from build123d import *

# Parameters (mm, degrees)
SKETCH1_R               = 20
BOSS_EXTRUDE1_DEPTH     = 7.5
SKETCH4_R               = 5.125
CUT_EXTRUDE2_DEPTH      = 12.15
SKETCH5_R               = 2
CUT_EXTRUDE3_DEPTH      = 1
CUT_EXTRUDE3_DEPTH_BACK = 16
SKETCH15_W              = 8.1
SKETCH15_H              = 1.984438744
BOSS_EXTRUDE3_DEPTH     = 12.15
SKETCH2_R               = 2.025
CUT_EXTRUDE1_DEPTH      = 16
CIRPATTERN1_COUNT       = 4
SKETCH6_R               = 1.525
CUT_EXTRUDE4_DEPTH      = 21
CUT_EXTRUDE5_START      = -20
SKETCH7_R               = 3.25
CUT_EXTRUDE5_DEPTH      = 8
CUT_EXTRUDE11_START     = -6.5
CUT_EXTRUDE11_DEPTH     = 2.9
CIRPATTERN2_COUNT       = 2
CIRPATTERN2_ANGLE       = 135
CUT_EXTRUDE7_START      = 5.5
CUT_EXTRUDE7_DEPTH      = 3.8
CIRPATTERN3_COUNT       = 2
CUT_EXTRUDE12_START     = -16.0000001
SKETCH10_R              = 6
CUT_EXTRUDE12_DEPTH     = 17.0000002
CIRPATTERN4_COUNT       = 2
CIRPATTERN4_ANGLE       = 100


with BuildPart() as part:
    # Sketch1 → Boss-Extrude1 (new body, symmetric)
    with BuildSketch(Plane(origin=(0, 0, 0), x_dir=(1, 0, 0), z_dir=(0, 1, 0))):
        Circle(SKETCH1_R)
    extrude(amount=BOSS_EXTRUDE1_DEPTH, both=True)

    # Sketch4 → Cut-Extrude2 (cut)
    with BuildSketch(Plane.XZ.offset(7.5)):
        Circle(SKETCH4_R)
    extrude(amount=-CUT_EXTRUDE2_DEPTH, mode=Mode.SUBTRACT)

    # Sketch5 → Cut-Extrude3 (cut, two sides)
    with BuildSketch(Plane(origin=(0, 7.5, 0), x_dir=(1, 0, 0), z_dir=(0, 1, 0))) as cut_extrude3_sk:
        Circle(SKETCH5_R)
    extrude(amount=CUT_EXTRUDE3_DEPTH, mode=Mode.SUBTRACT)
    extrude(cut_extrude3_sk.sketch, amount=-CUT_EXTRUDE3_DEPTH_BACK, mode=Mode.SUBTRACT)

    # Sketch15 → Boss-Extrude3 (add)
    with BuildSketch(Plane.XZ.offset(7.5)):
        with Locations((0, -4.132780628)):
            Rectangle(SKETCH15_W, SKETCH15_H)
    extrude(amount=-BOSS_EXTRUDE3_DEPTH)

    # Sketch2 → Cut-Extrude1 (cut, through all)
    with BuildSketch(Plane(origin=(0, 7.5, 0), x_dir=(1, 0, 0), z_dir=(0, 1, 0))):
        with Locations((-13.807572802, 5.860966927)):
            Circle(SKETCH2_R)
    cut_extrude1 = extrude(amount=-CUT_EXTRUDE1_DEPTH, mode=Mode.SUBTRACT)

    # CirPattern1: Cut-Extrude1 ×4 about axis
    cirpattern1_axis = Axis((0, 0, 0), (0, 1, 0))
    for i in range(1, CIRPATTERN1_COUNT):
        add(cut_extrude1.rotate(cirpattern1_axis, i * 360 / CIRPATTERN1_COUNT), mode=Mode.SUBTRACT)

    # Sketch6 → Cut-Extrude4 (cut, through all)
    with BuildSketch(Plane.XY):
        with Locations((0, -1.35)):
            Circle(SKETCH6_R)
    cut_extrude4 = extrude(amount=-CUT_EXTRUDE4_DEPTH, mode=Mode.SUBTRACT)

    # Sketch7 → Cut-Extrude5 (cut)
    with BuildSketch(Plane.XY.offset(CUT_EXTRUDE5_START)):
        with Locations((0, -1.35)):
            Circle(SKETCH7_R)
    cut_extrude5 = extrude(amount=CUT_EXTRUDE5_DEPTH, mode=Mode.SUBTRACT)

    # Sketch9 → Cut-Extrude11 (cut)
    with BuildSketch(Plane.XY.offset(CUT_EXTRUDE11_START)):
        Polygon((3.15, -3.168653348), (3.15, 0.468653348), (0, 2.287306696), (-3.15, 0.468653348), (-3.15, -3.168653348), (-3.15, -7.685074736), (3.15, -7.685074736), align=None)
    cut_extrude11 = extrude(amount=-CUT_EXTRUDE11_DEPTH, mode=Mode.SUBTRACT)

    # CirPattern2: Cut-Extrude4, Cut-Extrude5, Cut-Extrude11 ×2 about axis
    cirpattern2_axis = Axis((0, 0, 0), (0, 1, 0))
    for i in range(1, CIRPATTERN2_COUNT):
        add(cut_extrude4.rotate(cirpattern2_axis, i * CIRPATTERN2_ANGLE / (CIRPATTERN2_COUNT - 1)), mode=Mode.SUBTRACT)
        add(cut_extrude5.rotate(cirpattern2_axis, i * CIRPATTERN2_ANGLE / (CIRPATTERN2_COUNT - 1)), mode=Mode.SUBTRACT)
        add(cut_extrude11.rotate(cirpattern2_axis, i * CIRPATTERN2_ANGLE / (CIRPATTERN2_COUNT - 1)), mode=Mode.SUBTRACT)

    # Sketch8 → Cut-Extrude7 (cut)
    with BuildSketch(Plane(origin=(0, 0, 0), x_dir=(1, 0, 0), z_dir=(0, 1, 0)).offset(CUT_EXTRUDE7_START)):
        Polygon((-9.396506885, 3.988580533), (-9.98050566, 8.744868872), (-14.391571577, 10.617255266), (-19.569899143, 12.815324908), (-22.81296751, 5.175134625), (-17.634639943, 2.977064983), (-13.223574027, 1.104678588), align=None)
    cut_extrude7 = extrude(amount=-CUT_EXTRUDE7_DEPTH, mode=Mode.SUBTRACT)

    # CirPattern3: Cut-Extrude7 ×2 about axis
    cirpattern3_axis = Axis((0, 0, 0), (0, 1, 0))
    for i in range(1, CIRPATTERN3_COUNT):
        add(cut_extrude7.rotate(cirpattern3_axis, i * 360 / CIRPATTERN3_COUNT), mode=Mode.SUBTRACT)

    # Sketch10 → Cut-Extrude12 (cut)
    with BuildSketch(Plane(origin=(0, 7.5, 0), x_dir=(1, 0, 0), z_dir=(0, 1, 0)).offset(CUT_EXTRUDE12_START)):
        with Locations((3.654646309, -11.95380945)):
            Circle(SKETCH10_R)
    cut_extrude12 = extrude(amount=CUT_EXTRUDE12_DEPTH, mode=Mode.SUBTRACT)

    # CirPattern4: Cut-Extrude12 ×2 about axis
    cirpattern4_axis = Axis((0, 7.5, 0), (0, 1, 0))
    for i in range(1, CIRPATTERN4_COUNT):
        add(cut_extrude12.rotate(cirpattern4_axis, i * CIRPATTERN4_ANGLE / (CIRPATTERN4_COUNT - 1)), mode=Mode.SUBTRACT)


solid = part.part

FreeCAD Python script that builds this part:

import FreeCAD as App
import Part
import Sketcher
from FreeCAD import Vector
Q = App.Units.Quantity


def add_polygon(sketch, points):
    """Adds a closed chain of lines whose ends are joined by coincident constraints."""
    first, n = sketch.GeometryCount, len(points)
    for a, b in zip(points, points[1:] + points[:1]):
        sketch.addGeometry(Part.LineSegment(App.Vector(*a, 0), App.Vector(*b, 0)), False)
    for i in range(n):
        sketch.addConstraint(Sketcher.Constraint("Coincident", first + i, 2, first + (i + 1) % n, 1))

doc = App.newDocument("Part")
body = doc.addObject("PartDesign::Body", "Body")

sketch1 = doc.addObject("Sketcher::SketchObject", "Sketch")
body.addObject(sketch1)
sketch1.AttachmentSupport = (doc.XZ_Plane, [""])
sketch1.MapMode = "FlatFace"
sketch1.addGeometry(Part.Circle(Vector(0, 0, 0), Vector(0, 0, 1), 20), False)
sketch1.addConstraint([
    Sketcher.Constraint("Coincident", 0, 3, -1, 1),
    Sketcher.Constraint("Diameter", 0, Q("40 mm")),
])
pad1 = doc.addObject("PartDesign::Pad", "Pad")
body.addObject(pad1)
pad1.Profile = sketch1
pad1.Length = 15
pad1.Midplane = True

sketch2 = doc.addObject("Sketcher::SketchObject", "Sketch001")
body.addObject(sketch2)
sketch2.AttachmentSupport = (doc.XZ_Plane, [""])
sketch2.MapMode = "FlatFace"
sketch2.AttachmentOffset = App.Placement(Vector(0, 0, 7.5), App.Rotation())
sketch2.addGeometry(Part.Circle(Vector(0, 0, 0), Vector(0, 0, 1), 5), False)
sketch2.addConstraint([
    Sketcher.Constraint("Coincident", 0, 3, -1, 1),
    Sketcher.Constraint("Diameter", 0, Q("10.25 mm")),
])
pocket1 = doc.addObject("PartDesign::Pocket", "Pocket")
body.addObject(pocket1)
pocket1.Profile = sketch2
pocket1.Length = 12.15

sketch3 = doc.addObject("Sketcher::SketchObject", "Sketch002")
body.addObject(sketch3)
sketch3.AttachmentSupport = (doc.XZ_Plane, [""])
sketch3.MapMode = "FlatFace"
sketch3.AttachmentOffset = App.Placement(Vector(0, 0, -7.5), App.Rotation())
sketch3.addGeometry(Part.Circle(Vector(0, 0, 0), Vector(0, 0, 1), 2), False)
sketch3.addConstraint([
    Sketcher.Constraint("Coincident", 0, 3, -1, 1),
    Sketcher.Constraint("Diameter", 0, Q("4 mm")),
])
pocket2 = doc.addObject("PartDesign::Pocket", "Pocket001")
body.addObject(pocket2)
pocket2.Profile = sketch3
pocket2.Type = "ThroughAll"
pocket2.Midplane = True

sketch4 = doc.addObject("Sketcher::SketchObject", "Sketch003")
body.addObject(sketch4)
sketch4.AttachmentSupport = (doc.XZ_Plane, [""])
sketch4.MapMode = "FlatFace"
sketch4.AttachmentOffset = App.Placement(Vector(0, 0, 7.5), App.Rotation())
add_polygon(sketch4, [(-4, -3.1), (-4, -5.1), (4, -5.1), (4, -3.1)])
sketch4.addConstraint([
    Sketcher.Constraint("Vertical", 0),
    Sketcher.Constraint("Horizontal", 1),
    Sketcher.Constraint("Vertical", 2),
    Sketcher.Constraint("Horizontal", 3),
    Sketcher.Constraint("DistanceX", 1, 1, 1, 2, Q("8.1 mm")),
    Sketcher.Constraint("DistanceX", 0, 2, -1, 1, Q("4.05 mm")),
    Sketcher.Constraint("DistanceY", 0, 2, -1, 1, Q("5.125 mm")),
    Sketcher.Constraint("DistanceY", 0, 2, 0, 1, Q("1.984439 mm")),
])
pad2 = doc.addObject("PartDesign::Pad", "Pad001")
body.addObject(pad2)
pad2.Profile = sketch4
pad2.Length = 12.15
pad2.Reversed = True

sketch5 = doc.addObject("Sketcher::SketchObject", "Sketch004")
body.addObject(sketch5)
sketch5.AttachmentSupport = (doc.XZ_Plane, [""])
sketch5.MapMode = "FlatFace"
sketch5.AttachmentOffset = App.Placement(Vector(0, 0, -7.5), App.Rotation())
sketch5.addGeometry(Part.Circle(Vector(-13.8, -5.9, 0), Vector(0, 0, 1), 2), False)
sketch5.addConstraint([
    Sketcher.Constraint("Diameter", 0, Q("4.05 mm")),
    Sketcher.Constraint("DistanceX", 0, 3, -1, 1, Q("13.807573 mm")),
    Sketcher.Constraint("DistanceY", 0, 3, -1, 1, Q("5.860967 mm")),
])
pocket3 = doc.addObject("PartDesign::Pocket", "Pocket002")
body.addObject(pocket3)
pocket3.Profile = sketch5
pocket3.Type = "ThroughAll"
pocket3.Reversed = True
doc.recompute()

polarpattern = doc.addObject("PartDesign::PolarPattern", "PolarPattern")
body.addObject(polarpattern)
polarpattern.Originals = [pocket3]
polarpattern.Axis = (doc.Y_Axis, [""])
polarpattern.Angle = 360
polarpattern.Occurrences = 4
body.Tip = polarpattern

sketch6 = doc.addObject("Sketcher::SketchObject", "Sketch005")
body.addObject(sketch6)
sketch6.AttachmentSupport = (doc.XY_Plane, [""])
sketch6.MapMode = "FlatFace"
sketch6.addGeometry(Part.Circle(Vector(0, -1.4, 0), Vector(0, 0, 1), 1.5), False)
sketch6.addConstraint([
    Sketcher.Constraint("PointOnObject", 0, 3, -2),
    Sketcher.Constraint("Diameter", 0, Q("3.05 mm")),
    Sketcher.Constraint("DistanceY", 0, 3, -1, 1, Q("1.35 mm")),
])
pocket4 = doc.addObject("PartDesign::Pocket", "Pocket003")
body.addObject(pocket4)
pocket4.Profile = sketch6
pocket4.Type = "ThroughAll"

sketch7 = doc.addObject("Sketcher::SketchObject", "Sketch006")
body.addObject(sketch7)
sketch7.AttachmentSupport = (doc.XY_Plane, [""])
sketch7.MapMode = "FlatFace"
sketch7.AttachmentOffset = App.Placement(Vector(0, 0, -20), App.Rotation())
sketch7.addGeometry(Part.Circle(Vector(0, -1.4, 0), Vector(0, 0, 1), 3.2), False)
sketch7.addConstraint([
    Sketcher.Constraint("PointOnObject", 0, 3, -2),
    Sketcher.Constraint("Diameter", 0, Q("6.5 mm")),
    Sketcher.Constraint("DistanceY", 0, 3, -1, 1, Q("1.35 mm")),
])
pocket5 = doc.addObject("PartDesign::Pocket", "Pocket004")
body.addObject(pocket5)
pocket5.Profile = sketch7
pocket5.Length = 8
pocket5.Reversed = True

sketch8 = doc.addObject("Sketcher::SketchObject", "Sketch007")
body.addObject(sketch8)
sketch8.AttachmentSupport = (doc.XY_Plane, [""])
sketch8.MapMode = "FlatFace"
sketch8.AttachmentOffset = App.Placement(Vector(0, 0, -6.5), App.Rotation())
add_polygon(sketch8, [(3.1, 0.5), (0, 2.3), (-3.1, 0.5), (-3.1, -7.7), (3.1, -7.7)])
sketch8.addConstraint([
    Sketcher.Constraint("Vertical", 2),
    Sketcher.Constraint("Horizontal", 3),
    Sketcher.Constraint("Vertical", 4),
    Sketcher.Constraint("Symmetric", 1, 2, 4, 2, -2),
    Sketcher.Constraint("PointOnObject", 0, 2, -2),
    Sketcher.Constraint("Angle", 0, Q("150 deg")),
    Sketcher.Constraint("DistanceX", 3, 1, 3, 2, Q("6.3 mm")),
    Sketcher.Constraint("DistanceY", 2, 2, 2, 1, Q("8.153728 mm")),
    Sketcher.Constraint("DistanceY", -1, 1, 0, 2, Q("2.287307 mm")),
])
pocket6 = doc.addObject("PartDesign::Pocket", "Pocket005")
body.addObject(pocket6)
pocket6.Profile = sketch8
pocket6.Length = 2.9
doc.recompute()

polarpattern2 = doc.addObject("PartDesign::PolarPattern", "PolarPattern001")
body.addObject(polarpattern2)
polarpattern2.Originals = [pocket4, pocket5, pocket6]
polarpattern2.Axis = (doc.Y_Axis, [""])
polarpattern2.Angle = 135
polarpattern2.Occurrences = 2
body.Tip = polarpattern2

sketch9 = doc.addObject("Sketcher::SketchObject", "Sketch008")
body.addObject(sketch9)
sketch9.AttachmentSupport = (doc.XZ_Plane, [""])
sketch9.MapMode = "FlatFace"
sketch9.AttachmentOffset = App.Placement(Vector(0, 0, -5.5), App.Rotation())
add_polygon(sketch9, [(-9.4, -4), (-10, -8.7), (-14.4, -10.6), (-19.6, -12.8), (-22.8, -5.2), (-17.6, -3), (-13.2, -1.1)])
sketch9.addConstraint([
    Sketcher.Constraint("Parallel", 1, 2),
    Sketcher.Constraint("Perpendicular", 2, 3),
    Sketcher.Constraint("Perpendicular", 3, 4),
    Sketcher.Constraint("Parallel", 4, 5),
    Sketcher.Constraint("Equal", 0, 1),
    Sketcher.Constraint("Equal", 2, 4),
    Sketcher.Constraint("Equal", 1, 5),
    Sketcher.Constraint("Equal", 5, 6),
    Sketcher.Constraint("Angle", 0, Q("-97 deg")),
    Sketcher.Constraint("Angle", 1, Q("-157 deg")),
    Sketcher.Constraint("Distance", 3, Q("8.3 mm")),
    Sketcher.Constraint("DistanceX", 2, 2, -1, 1, Q("19.569899 mm")),
    Sketcher.Constraint("Distance", 2, Q("5.62553 mm")),
    Sketcher.Constraint("DistanceY", 0, 2, -1, 1, Q("8.744869 mm")),
])
pocket7 = doc.addObject("PartDesign::Pocket", "Pocket006")
body.addObject(pocket7)
pocket7.Profile = sketch9
pocket7.Length = 3.8
pocket7.Reversed = True
doc.recompute()

polarpattern3 = doc.addObject("PartDesign::PolarPattern", "PolarPattern002")
body.addObject(polarpattern3)
polarpattern3.Originals = [pocket7]
polarpattern3.Axis = (doc.Y_Axis, [""])
polarpattern3.Angle = 360
polarpattern3.Occurrences = 2
body.Tip = polarpattern3

sketch10 = doc.addObject("Sketcher::SketchObject", "Sketch009")
body.addObject(sketch10)
sketch10.AttachmentSupport = (doc.XZ_Plane, [""])
sketch10.MapMode = "FlatFace"
sketch10.AttachmentOffset = App.Placement(Vector(0, 0, 8.5), App.Rotation())
sketch10.addGeometry(Part.Circle(Vector(4, 12, 0), Vector(0, 0, 1), 6), False)
sketch10.addConstraint([
    Sketcher.Constraint("Diameter", 0, Q("12 mm")),
    Sketcher.Constraint("DistanceY", -1, 1, 0, 3, Q("11.953809 mm")),
    Sketcher.Constraint("DistanceX", -1, 1, 0, 3, Q("3.654646 mm")),
])
pocket8 = doc.addObject("PartDesign::Pocket", "Pocket007")
body.addObject(pocket8)
pocket8.Profile = sketch10
pocket8.Length = 17
doc.recompute()

polarpattern4 = doc.addObject("PartDesign::PolarPattern", "PolarPattern003")
body.addObject(polarpattern4)
polarpattern4.Originals = [pocket8]
polarpattern4.Axis = (doc.Y_Axis, [""])
polarpattern4.Angle = 100
polarpattern4.Occurrences = 2
body.Tip = polarpattern4

doc.recompute()
